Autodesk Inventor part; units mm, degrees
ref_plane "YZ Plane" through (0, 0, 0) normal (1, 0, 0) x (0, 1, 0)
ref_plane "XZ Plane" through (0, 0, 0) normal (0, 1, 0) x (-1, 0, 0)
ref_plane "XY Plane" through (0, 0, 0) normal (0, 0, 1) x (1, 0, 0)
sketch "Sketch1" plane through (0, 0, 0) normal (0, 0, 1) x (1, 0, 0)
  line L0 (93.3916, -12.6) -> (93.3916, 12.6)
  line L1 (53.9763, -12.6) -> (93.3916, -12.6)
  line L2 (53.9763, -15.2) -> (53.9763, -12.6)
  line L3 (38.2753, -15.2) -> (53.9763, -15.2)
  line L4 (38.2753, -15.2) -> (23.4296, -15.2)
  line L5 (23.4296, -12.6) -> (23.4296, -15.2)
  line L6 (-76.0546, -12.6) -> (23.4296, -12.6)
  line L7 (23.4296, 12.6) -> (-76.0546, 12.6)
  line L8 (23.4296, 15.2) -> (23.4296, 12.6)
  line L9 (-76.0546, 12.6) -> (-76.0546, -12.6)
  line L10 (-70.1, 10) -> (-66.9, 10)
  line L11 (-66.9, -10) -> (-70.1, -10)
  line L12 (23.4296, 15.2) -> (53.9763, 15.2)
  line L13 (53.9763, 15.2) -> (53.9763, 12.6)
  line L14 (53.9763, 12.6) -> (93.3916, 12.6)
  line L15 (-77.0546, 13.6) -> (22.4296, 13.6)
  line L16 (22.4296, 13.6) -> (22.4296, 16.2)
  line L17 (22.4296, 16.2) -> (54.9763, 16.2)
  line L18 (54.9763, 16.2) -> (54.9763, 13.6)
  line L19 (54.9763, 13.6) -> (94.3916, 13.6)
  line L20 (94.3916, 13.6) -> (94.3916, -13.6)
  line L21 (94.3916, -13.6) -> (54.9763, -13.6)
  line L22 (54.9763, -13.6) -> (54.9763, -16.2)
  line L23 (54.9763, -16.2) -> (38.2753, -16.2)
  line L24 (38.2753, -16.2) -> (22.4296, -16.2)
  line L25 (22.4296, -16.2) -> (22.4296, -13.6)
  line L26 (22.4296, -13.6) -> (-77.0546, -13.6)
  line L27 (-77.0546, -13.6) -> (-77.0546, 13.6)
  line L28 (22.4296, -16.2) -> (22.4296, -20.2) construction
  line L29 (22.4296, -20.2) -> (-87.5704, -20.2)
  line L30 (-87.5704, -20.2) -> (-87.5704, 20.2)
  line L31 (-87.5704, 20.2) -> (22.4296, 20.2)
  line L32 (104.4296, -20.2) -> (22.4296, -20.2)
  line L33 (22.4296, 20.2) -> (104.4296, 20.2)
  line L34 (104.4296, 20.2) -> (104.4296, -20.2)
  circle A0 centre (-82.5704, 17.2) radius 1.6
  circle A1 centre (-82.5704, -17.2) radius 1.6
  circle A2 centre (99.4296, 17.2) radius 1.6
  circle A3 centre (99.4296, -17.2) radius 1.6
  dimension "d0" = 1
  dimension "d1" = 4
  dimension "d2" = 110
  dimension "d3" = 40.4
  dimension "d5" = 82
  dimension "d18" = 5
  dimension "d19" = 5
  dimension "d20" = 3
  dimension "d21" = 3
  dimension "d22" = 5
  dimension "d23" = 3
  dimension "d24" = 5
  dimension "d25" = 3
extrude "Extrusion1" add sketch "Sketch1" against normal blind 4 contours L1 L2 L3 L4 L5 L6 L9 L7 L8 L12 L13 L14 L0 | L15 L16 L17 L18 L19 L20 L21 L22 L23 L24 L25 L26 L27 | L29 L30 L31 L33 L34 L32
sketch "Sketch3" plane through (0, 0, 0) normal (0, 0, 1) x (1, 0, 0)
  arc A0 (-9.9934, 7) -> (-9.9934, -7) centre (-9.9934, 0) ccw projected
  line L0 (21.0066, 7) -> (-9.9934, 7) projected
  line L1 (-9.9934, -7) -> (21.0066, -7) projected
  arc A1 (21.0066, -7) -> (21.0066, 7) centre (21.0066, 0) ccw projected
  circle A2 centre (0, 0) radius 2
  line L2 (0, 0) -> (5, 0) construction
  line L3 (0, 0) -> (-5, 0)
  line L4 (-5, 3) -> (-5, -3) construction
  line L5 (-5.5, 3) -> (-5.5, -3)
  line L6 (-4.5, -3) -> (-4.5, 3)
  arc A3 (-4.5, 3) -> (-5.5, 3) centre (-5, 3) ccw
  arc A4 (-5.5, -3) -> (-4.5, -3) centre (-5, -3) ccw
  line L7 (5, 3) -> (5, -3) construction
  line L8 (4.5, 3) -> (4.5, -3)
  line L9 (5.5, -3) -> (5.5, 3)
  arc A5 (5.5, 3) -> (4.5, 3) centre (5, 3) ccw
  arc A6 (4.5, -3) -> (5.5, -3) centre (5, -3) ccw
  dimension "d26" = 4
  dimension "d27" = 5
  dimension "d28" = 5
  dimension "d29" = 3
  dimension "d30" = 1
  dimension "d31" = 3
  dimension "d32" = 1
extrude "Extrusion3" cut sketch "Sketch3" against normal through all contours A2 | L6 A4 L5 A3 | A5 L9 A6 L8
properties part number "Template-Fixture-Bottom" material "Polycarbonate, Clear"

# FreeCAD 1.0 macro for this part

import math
import FreeCAD as App
import Part
import Sketcher

V = App.Vector


def add_polygon(sketch, points):
    """Adds a closed chain of lines whose ends are joined by coincident constraints."""
    first, n = sketch.GeometryCount, len(points)
    for a, b in zip(points, points[1:] + points[:1]):
        sketch.addGeometry(Part.LineSegment(App.Vector(*a, 0), App.Vector(*b, 0)), False)
    for i in range(n):
        sketch.addConstraint(Sketcher.Constraint("Coincident", first + i, 2, first + (i + 1) % n, 1))

doc = App.newDocument("Part")
body = doc.addObject("PartDesign::Body", "Body")

# Sketch on XY plane
sketch1 = body.newObject("Sketcher::SketchObject", "Sketch")
sketch1.AttachmentSupport = (doc.getObject("XY_Plane"), [""])
sketch1.MapMode = "FlatFace"
add_polygon(sketch1, [(-87.6, -20.2), (104.4, -20.2), (104.4, 20.2), (-87.6, 20.2)])  # lines 0-3
sketch1.addGeometry(Part.Circle(V(-82.6, -17.2, 0), V(0, 0, 1), 1.6), False)  # 4
sketch1.addGeometry(Part.Circle(V(99.4, -17.2, 0), V(0, 0, 1), 1.6), False)  # 5
sketch1.addGeometry(Part.Circle(V(-82.6, 17.2, 0), V(0, 0, 1), 1.6), False)  # 6
sketch1.addGeometry(Part.Circle(V(99.4, 17.2, 0), V(0, 0, 1), 1.6), False)  # 7
sketch1.addConstraint(Sketcher.Constraint("Horizontal", 0))
sketch1.addConstraint(Sketcher.Constraint("Vertical", 1))
sketch1.addConstraint(Sketcher.Constraint("Horizontal", 2))
sketch1.addConstraint(Sketcher.Constraint("Vertical", 3))
sketch1.addConstraint(Sketcher.Constraint("Equal", 4, 5))
sketch1.addConstraint(Sketcher.Constraint("Equal", 5, 6))
sketch1.addConstraint(Sketcher.Constraint("Equal", 6, 7))
sketch1.addConstraint(Sketcher.Constraint("Symmetric", 4, 3, 6, 3, -1))
sketch1.addConstraint(Sketcher.Constraint("Symmetric", 5, 3, 7, 3, -1))
sketch1.addConstraint(Sketcher.Constraint("Horizontal", 4, 3, 5, 3))
sketch1.addConstraint(Sketcher.Constraint("DistanceY", 1, 1, 1, 2, 40.4))
sketch1.addConstraint(Sketcher.Constraint("DistanceX", 5, 3, 0, 2, 5.0))
sketch1.addConstraint(Sketcher.Constraint("DistanceY", 0, 2, 5, 3, 3.0))
sketch1.addConstraint(Sketcher.Constraint("DistanceY", 7, 3, 1, 2, 3.0))
sketch1.addConstraint(Sketcher.Constraint("DistanceX", 2, 2, 6, 3, 5.0))
sketch1.addConstraint(Sketcher.Constraint("Diameter", 4, 3.2))
sketch1.addConstraint(Sketcher.Constraint("DistanceX", 0, 1, 0, 2, 192.0))
sketch1.addConstraint(Sketcher.Constraint("DistanceX", 4, 3, -1, 1, 82.5704))
pad1 = body.newObject("PartDesign::Pad", "Pad")
pad1.Profile = sketch1
pad1.Length = 4
pad1.Reversed = True

# Sketch on XY plane
sketch2 = body.newObject("Sketcher::SketchObject", "Sketch001")
sketch2.AttachmentSupport = (doc.getObject("XY_Plane"), [""])
sketch2.MapMode = "FlatFace"
sketch2.addGeometry(Part.Circle(V(0, 0, 0), V(0, 0, 1), 2), False)
sketch2.addGeometry(Part.LineSegment(V(-4.5, -3, 0), V(-4.5, 3, 0)), False)
sketch2.addGeometry(Part.ArcOfCircle(Part.Circle(V(-5, 3, 0), V(0, 0, 1), 0.5), math.radians(0), math.radians(180)), False)
sketch2.addGeometry(Part.LineSegment(V(-5.5, 3, 0), V(-5.5, -3, 0)), False)
sketch2.addGeometry(Part.ArcOfCircle(Part.Circle(V(-5, -3, 0), V(0, 0, 1), 0.5), math.radians(180), math.radians(360)), False)
sketch2.addGeometry(Part.ArcOfCircle(Part.Circle(V(5, 3, 0), V(0, 0, 1), 0.5), math.radians(0), math.radians(180)), False)
sketch2.addGeometry(Part.LineSegment(V(4.5, 3, 0), V(4.5, -3, 0)), False)
sketch2.addGeometry(Part.ArcOfCircle(Part.Circle(V(5, -3, 0), V(0, 0, 1), 0.5), math.radians(180), math.radians(360)), False)
sketch2.addGeometry(Part.LineSegment(V(5.5, -3, 0), V(5.5, 3, 0)), False)
sketch2.addConstraint(Sketcher.Constraint("Tangent", 1, 2, 2, 1))
sketch2.addConstraint(Sketcher.Constraint("Tangent", 2, 2, 3, 1))
sketch2.addConstraint(Sketcher.Constraint("Tangent", 3, 2, 4, 1))
sketch2.addConstraint(Sketcher.Constraint("Tangent", 4, 2, 1, 1))
sketch2.addConstraint(Sketcher.Constraint("Tangent", 5, 2, 6, 1))
sketch2.addConstraint(Sketcher.Constraint("Tangent", 6, 2, 7, 1))
sketch2.addConstraint(Sketcher.Constraint("Tangent", 7, 2, 8, 1))
sketch2.addConstraint(Sketcher.Constraint("Tangent", 8, 2, 5, 1))
sketch2.addConstraint(Sketcher.Constraint("Vertical", 1))
sketch2.addConstraint(Sketcher.Constraint("Vertical", 3))
sketch2.addConstraint(Sketcher.Constraint("Vertical", 6))
sketch2.addConstraint(Sketcher.Constraint("Vertical", 8))
sketch2.addConstraint(Sketcher.Constraint("Coincident", 0, 3, -1, 1))
sketch2.addConstraint(Sketcher.Constraint("Equal", 4, 5))
sketch2.addConstraint(Sketcher.Constraint("Symmetric", 4, 3, 5, 3, -1, 1))
sketch2.addConstraint(Sketcher.Constraint("Horizontal", 2, 3, 5, 3))
sketch2.addConstraint(Sketcher.Constraint("Horizontal", 4, 3, 7, 3))
sketch2.addConstraint(Sketcher.Constraint("Diameter", 0, 4.0))
sketch2.addConstraint(Sketcher.Constraint("Radius", 2, 0.5))
sketch2.addConstraint(Sketcher.Constraint("DistanceX", 2, 3, -1, 1, 5.0))
sketch2.addConstraint(Sketcher.Constraint("DistanceY", -1, 1, 2, 3, 3.0))
pocket1 = body.newObject("PartDesign::Pocket", "Pocket")
pocket1.Profile = sketch2
pocket1.Type = "ThroughAll"

doc.recompute()
